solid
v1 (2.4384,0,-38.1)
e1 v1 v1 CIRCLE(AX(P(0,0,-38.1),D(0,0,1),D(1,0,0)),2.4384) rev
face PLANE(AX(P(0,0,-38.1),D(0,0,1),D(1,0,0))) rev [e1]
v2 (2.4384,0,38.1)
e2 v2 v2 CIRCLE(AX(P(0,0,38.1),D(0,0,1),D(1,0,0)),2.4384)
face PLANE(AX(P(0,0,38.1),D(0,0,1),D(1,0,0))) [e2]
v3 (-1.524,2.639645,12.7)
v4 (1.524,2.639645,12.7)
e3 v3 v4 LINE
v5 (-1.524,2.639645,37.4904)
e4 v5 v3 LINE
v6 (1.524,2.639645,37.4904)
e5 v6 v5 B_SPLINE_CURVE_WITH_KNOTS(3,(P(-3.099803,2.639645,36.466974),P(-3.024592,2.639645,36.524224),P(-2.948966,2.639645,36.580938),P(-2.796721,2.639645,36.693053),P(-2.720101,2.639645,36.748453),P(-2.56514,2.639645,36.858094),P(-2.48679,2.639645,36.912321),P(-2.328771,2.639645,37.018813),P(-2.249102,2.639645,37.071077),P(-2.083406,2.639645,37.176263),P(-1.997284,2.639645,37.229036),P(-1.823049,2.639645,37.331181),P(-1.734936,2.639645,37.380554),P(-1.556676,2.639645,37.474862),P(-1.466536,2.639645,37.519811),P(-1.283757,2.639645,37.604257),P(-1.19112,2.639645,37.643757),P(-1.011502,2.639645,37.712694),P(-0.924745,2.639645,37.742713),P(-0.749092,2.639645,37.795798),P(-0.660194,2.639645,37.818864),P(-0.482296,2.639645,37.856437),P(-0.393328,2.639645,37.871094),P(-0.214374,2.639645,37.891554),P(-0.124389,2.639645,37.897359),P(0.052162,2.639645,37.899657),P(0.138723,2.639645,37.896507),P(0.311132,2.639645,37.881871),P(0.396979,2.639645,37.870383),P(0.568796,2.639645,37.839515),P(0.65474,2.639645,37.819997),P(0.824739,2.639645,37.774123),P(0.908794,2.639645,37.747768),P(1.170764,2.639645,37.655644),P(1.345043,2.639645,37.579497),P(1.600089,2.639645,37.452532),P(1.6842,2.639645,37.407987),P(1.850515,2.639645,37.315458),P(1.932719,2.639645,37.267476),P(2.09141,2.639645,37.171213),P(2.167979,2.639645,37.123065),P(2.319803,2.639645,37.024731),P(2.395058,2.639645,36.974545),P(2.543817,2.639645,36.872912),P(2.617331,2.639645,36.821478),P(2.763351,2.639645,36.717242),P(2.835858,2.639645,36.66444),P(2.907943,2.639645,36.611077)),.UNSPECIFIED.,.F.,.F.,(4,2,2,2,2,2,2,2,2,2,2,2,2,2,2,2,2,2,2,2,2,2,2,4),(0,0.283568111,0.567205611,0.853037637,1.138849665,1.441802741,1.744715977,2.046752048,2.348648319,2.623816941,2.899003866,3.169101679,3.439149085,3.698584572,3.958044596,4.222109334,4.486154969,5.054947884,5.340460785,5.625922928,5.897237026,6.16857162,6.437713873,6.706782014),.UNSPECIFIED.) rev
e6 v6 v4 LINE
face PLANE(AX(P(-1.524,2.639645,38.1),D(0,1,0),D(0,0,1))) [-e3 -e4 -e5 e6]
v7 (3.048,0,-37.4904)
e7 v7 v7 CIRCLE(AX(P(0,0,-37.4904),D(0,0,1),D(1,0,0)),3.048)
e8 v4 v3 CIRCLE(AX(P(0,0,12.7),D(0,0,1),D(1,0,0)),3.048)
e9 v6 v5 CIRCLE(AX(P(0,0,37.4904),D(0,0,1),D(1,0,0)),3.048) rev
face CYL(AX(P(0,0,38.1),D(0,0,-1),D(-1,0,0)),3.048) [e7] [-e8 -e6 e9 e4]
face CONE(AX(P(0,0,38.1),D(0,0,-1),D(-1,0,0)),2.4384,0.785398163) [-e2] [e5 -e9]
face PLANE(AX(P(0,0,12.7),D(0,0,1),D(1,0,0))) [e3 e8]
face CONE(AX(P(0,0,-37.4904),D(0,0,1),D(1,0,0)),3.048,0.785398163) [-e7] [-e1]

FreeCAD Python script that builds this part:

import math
import FreeCAD as App
import Part
import Sketcher
Q = App.Units.Quantity


def edges_at(feature, points):
    """Names of the edges that pass closest to the given points."""
    edges = feature.Shape.Edges
    near = lambda p: min(range(len(edges)), key=lambda i: edges[i].distToShape(Part.Vertex(*p))[0])
    return sorted({f"Edge{near(p) + 1}" for p in points})

doc = App.newDocument("Part")
body = doc.addObject("PartDesign::Body", "Body")

sketch1 = body.newObject("Sketcher::SketchObject", "Sketch")
sketch1.AttachmentSupport = (doc.getObject("XY_Plane"), [""])
sketch1.MapMode = "FlatFace"
sketch1.addGeometry(Part.Circle(App.Vector(0, 0, 0), App.Vector(0, 0, 1), 3), False)
sketch1.addConstraint(Sketcher.Constraint("Coincident", 0, 3, -1, 1))
sketch1.addConstraint(Sketcher.Constraint("Diameter", 0, Q("0.24 in")))
pad1 = body.newObject("PartDesign::Pad", "Pad")
pad1.Profile = sketch1
pad1.Length = Q("3 in")
pad1.Midplane = True
doc.recompute()

chamfer = body.newObject("PartDesign::Chamfer", "Chamfer")
chamfer.Base = (pad1, edges_at(pad1, [(-3.048, 0, -38.1), (-3.048, 0, 38.1)]))
chamfer.Size = Q("0.024 in")

sketch2 = body.newObject("Sketcher::SketchObject", "Sketch001")
sketch2.AttachmentSupport = (doc.getObject("XY_Plane"), [""])
sketch2.MapMode = "FlatFace"
sketch2.AttachmentOffset = App.Placement(App.Vector(0, 0, 0.5 * 25.4), App.Rotation())
sketch2.addGeometry(Part.LineSegment(App.Vector(-1.5, 2.6, 0), App.Vector(1.5, 2.6, 0)), False)
sketch2.addGeometry(Part.ArcOfCircle(Part.Circle(App.Vector(0, 0, 0), App.Vector(0, 0, 1), 3), math.radians(60), math.radians(120)), False)
sketch2.addConstraint(Sketcher.Constraint("Coincident", 0, 1, 1, 2))
sketch2.addConstraint(Sketcher.Constraint("Coincident", 1, 1, 0, 2))
sketch2.addConstraint(Sketcher.Constraint("Horizontal", 0))
sketch2.addConstraint(Sketcher.Constraint("Coincident", 1, 3, -1, 1))
sketch2.addConstraint(Sketcher.Constraint("Radius", 1, Q("0.12 in")))
sketch2.addConstraint(Sketcher.Constraint("DistanceX", 0, 1, 0, 2, Q("0.12 in")))
pocket1 = body.newObject("PartDesign::Pocket", "Pocket")
pocket1.Profile = sketch2
pocket1.Type = "ThroughAll"
pocket1.Reversed = True

doc.recompute()
